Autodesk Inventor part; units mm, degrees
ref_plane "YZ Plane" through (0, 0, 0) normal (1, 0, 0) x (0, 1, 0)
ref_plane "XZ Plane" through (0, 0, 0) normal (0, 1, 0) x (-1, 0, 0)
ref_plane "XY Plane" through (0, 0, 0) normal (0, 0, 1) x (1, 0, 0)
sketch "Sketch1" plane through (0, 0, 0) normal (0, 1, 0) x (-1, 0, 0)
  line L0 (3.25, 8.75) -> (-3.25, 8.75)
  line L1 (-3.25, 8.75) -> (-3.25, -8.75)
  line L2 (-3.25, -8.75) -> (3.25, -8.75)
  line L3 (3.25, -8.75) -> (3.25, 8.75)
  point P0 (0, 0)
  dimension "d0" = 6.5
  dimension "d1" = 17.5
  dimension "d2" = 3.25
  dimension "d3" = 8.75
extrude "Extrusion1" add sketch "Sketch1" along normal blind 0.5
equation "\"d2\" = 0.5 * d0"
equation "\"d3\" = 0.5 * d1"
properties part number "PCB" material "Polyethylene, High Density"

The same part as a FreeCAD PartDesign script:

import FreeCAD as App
import Part
import Sketcher
from FreeCAD import Vector

doc = App.newDocument("Part")
params = doc.addObject("Spreadsheet::Sheet", "Params")
for row, (alias, value) in enumerate([
    ("sketch1_width", "6.5 mm"),
    ("sketch1_height", "17.5 mm"),
    ("pad1_length", "0.5 mm"),
], start=1):
    params.set(f"A{row}", alias)
    params.set(f"B{row}", "=" + value)
    params.setAlias(f"B{row}", alias)

body = doc.addObject("PartDesign::Body", "Body")

# Sketch on XZ plane
sketch1 = doc.addObject("Sketcher::SketchObject", "Sketch")
body.addObject(sketch1)
sketch1.AttachmentSupport = (doc.XZ_Plane, [""])
sketch1.MapMode = "FlatFace"
sketch1.addGeometry(Part.LineSegment(Vector(-3, -9, 0), Vector(-3, 9, 0)), False)
sketch1.addGeometry(Part.LineSegment(Vector(-3, 9, 0), Vector(3, 9, 0)), False)
sketch1.addGeometry(Part.LineSegment(Vector(3, 9, 0), Vector(3, -9, 0)), False)
sketch1.addGeometry(Part.LineSegment(Vector(3, -9, 0), Vector(-3, -9, 0)), False)
sketch1.addConstraint(Sketcher.Constraint("Coincident", 0, 2, 1, 1))
sketch1.addConstraint(Sketcher.Constraint("Coincident", 1, 2, 2, 1))
sketch1.addConstraint(Sketcher.Constraint("Coincident", 2, 2, 3, 1))
sketch1.addConstraint(Sketcher.Constraint("Coincident", 3, 2, 0, 1))
sketch1.addConstraint(Sketcher.Constraint("Vertical", 0))
sketch1.addConstraint(Sketcher.Constraint("Horizontal", 1))
sketch1.addConstraint(Sketcher.Constraint("Vertical", 2))
sketch1.addConstraint(Sketcher.Constraint("Horizontal", 3))
sketch1.addConstraint(Sketcher.Constraint("Symmetric", 0, 2, 2, 2, -1, 1))
sketch1.addConstraint(Sketcher.Constraint("DistanceX", 1, 1, 1, 2, 6.5))
sketch1.addConstraint(Sketcher.Constraint("DistanceY", 0, 1, 0, 2, 17.5))
sketch1.setExpression("Constraints[9]", "Params.sketch1_width")
sketch1.setExpression("Constraints[10]", "Params.sketch1_height")
pad1 = doc.addObject("PartDesign::Pad", "Pad")
body.addObject(pad1)
pad1.Profile = sketch1
pad1.setExpression("Length", "Params.pad1_length")
pad1.Reversed = True

doc.recompute()
